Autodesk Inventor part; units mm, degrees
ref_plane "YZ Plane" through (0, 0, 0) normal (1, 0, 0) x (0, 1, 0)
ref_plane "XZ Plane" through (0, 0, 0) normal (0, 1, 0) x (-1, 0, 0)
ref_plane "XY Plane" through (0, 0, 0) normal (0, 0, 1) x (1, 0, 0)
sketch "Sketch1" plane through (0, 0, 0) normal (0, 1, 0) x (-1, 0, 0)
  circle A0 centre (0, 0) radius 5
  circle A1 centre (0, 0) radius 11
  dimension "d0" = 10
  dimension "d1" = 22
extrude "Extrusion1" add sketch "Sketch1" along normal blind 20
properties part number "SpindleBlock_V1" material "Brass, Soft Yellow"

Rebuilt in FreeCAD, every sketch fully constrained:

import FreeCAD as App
import Part
import Sketcher
Q = App.Units.Quantity

doc = App.newDocument("Part")
params = doc.addObject("Spreadsheet::Sheet", "Params")
for row, (alias, value) in enumerate([
    ("sketch1_diameter", "22 mm"),
    ("sketch1_diameter2", "10 mm"),
    ("pad1_length", "20 mm"),
], start=1):
    params.set(f"A{row}", alias)
    params.set(f"B{row}", "=" + value)
    params.setAlias(f"B{row}", alias)

body = doc.addObject("PartDesign::Body", "Body")

# Sketch on XZ plane
sketch1 = doc.addObject("Sketcher::SketchObject", "Sketch")
body.addObject(sketch1)
sketch1.AttachmentSupport = (doc.XZ_Plane, [""])
sketch1.MapMode = "FlatFace"
sketch1.addGeometry([
    Part.Circle(App.Vector(0, 0, 0), App.Vector(0, 0, 1), 11),
    Part.Circle(App.Vector(0, 0, 0), App.Vector(0, 0, 1), 5),
], False)
sketch1.addConstraint([
    Sketcher.Constraint("Coincident", 0, 3, -1, 1),
    Sketcher.Constraint("Coincident", 1, 3, -1, 1),
    Sketcher.Constraint("Diameter", 0, Q("22 mm")),
    Sketcher.Constraint("Diameter", 1, Q("10 mm")),
])
sketch1.setExpression("Constraints[2]", "Params.sketch1_diameter")
sketch1.setExpression("Constraints[3]", "Params.sketch1_diameter2")
pad1 = doc.addObject("PartDesign::Pad", "Pad")
body.addObject(pad1)
pad1.Profile = sketch1
pad1.setExpression("Length", "Params.pad1_length")
pad1.Reversed = True

doc.recompute()
